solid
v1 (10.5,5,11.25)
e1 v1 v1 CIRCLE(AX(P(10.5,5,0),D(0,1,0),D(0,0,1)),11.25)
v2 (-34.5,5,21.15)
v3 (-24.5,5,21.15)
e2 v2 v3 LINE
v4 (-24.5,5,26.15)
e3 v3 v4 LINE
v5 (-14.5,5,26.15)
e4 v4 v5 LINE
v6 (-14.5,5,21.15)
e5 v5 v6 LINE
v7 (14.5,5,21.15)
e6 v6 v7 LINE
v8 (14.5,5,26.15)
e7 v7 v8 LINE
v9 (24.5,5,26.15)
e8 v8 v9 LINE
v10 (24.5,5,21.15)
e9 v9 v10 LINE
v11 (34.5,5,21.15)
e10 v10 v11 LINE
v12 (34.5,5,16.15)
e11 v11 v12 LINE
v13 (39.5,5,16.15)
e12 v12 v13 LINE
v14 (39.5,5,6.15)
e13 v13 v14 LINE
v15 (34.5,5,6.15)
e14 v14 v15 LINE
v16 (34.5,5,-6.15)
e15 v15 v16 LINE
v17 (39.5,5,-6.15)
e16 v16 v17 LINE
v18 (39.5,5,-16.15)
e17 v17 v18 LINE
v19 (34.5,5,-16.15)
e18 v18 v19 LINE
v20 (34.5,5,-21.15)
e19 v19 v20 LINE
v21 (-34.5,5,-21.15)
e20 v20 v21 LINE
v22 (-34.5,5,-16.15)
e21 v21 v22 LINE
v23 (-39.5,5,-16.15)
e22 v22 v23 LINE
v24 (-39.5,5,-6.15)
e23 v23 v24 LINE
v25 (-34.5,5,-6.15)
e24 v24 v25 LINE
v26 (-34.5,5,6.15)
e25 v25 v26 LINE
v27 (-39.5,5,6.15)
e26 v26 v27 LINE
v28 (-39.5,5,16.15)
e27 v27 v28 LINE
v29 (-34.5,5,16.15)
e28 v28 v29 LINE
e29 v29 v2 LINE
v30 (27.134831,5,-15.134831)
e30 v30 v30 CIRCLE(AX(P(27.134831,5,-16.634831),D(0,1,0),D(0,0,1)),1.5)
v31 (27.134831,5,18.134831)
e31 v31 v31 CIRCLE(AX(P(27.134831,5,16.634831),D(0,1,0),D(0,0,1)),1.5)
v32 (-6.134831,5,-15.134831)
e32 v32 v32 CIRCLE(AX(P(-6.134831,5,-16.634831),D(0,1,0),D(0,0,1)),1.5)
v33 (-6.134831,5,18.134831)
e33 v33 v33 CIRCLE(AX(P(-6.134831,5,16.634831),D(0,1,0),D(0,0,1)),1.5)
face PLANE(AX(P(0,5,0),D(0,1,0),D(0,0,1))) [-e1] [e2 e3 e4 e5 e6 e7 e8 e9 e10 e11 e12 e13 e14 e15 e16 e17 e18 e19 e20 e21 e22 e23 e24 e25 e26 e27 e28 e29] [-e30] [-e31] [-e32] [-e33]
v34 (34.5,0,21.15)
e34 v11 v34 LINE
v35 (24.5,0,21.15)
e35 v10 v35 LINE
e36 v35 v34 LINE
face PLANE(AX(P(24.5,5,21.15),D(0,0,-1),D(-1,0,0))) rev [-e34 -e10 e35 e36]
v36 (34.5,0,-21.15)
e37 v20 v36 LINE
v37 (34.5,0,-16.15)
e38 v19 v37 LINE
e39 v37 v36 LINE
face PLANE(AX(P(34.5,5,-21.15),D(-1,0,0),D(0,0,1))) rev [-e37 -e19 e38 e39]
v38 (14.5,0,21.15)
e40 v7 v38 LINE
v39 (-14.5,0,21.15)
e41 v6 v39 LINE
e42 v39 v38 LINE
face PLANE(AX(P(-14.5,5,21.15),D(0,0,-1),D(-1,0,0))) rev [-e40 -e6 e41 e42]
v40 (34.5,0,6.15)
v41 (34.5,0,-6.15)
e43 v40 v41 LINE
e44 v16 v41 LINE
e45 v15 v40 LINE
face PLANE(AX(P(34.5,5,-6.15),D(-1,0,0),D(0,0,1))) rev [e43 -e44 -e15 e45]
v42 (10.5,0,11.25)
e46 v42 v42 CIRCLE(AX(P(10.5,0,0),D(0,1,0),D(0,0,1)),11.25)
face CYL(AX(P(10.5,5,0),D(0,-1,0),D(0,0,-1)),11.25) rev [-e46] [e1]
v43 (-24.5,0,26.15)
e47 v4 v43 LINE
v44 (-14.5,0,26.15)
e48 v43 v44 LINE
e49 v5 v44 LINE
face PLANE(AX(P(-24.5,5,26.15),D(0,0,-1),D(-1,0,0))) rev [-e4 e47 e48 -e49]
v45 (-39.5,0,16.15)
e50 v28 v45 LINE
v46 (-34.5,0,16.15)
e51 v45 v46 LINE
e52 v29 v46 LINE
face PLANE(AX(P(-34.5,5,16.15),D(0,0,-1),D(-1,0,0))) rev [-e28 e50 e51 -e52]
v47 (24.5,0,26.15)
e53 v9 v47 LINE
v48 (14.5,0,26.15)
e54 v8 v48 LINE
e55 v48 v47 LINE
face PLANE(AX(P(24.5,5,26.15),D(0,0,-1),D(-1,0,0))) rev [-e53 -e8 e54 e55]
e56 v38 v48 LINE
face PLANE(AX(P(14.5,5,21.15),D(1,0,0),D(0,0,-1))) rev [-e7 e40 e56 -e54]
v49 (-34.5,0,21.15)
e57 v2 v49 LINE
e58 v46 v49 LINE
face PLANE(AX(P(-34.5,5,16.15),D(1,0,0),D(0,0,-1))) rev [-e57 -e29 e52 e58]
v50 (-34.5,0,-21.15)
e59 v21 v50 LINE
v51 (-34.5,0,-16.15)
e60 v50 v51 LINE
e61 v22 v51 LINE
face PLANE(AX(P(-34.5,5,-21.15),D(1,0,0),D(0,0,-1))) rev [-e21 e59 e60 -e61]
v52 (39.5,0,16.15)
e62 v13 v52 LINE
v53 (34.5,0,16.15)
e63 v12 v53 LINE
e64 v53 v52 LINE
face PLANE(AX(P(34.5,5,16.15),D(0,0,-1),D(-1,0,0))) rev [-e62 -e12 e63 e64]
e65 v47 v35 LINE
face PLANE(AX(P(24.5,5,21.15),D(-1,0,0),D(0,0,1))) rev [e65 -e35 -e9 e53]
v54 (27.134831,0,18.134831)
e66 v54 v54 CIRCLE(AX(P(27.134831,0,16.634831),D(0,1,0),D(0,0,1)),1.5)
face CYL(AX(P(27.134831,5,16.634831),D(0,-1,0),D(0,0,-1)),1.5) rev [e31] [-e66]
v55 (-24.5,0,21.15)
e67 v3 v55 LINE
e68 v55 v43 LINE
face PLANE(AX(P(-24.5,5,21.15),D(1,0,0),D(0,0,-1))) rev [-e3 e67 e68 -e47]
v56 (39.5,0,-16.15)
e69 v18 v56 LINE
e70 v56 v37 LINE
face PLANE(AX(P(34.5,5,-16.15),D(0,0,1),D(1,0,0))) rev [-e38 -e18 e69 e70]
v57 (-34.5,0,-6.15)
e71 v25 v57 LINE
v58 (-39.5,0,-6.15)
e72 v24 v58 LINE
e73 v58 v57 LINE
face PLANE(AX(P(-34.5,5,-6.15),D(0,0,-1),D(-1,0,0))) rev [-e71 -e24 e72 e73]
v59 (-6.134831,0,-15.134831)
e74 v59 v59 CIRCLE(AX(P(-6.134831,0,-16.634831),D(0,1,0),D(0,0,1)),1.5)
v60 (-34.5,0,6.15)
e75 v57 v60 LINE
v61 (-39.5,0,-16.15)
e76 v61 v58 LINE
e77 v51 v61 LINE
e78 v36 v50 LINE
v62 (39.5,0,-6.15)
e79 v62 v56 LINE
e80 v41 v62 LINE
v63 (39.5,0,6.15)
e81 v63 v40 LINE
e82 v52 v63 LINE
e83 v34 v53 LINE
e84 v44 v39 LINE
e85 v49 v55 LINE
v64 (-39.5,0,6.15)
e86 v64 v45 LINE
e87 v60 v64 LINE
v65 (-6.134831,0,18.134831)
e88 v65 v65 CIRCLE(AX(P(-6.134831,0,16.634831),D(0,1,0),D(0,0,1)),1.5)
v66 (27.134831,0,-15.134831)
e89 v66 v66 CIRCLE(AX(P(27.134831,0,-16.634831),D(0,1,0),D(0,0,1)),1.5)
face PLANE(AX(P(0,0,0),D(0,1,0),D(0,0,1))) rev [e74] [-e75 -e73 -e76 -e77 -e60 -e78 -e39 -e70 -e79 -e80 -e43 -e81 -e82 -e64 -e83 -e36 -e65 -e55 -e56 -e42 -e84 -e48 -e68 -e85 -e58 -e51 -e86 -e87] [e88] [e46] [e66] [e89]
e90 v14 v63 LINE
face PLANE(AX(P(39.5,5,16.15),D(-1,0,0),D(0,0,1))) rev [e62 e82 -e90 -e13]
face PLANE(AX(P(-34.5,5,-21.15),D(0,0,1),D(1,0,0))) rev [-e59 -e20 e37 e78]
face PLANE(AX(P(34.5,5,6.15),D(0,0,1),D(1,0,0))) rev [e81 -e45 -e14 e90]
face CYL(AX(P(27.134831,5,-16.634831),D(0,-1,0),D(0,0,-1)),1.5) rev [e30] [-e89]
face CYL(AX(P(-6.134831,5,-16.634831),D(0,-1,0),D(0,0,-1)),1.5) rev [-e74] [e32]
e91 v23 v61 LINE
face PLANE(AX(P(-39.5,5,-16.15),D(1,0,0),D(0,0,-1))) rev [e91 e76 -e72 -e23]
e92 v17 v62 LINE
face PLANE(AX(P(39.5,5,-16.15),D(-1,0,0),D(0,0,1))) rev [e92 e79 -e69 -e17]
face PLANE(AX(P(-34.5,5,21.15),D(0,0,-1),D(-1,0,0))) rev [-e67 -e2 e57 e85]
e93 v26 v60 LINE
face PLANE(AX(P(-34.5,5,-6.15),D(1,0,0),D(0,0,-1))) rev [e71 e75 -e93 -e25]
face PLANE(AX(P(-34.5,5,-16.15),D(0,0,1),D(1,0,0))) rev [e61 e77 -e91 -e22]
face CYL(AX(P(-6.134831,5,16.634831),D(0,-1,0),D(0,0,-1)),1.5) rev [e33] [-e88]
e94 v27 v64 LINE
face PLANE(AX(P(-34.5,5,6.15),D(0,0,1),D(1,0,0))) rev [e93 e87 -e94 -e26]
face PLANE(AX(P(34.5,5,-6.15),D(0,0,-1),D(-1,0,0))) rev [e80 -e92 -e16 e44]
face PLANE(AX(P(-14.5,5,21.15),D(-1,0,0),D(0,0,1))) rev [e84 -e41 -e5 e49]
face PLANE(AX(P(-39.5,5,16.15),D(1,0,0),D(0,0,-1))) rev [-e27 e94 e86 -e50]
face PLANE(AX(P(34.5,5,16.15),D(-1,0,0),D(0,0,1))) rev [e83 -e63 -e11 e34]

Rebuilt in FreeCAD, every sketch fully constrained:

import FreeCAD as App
import Part
import Sketcher
Q = App.Units.Quantity

doc = App.newDocument("Part")
body = doc.addObject("PartDesign::Body", "Body")

sketch1 = body.newObject("Sketcher::SketchObject", "Sketch")
sketch1.AttachmentSupport = (doc.getObject("XZ_Plane"), [""])
sketch1.MapMode = "FlatFace"
sketch1.addGeometry([
    Part.LineSegment(App.Vector(34.5, -21.1, 0), App.Vector(-34.5, -21.1, 0)),
    Part.LineSegment(App.Vector(-34.5, -21.1, 0), App.Vector(-34.5, -16.1, 0)),
    Part.LineSegment(App.Vector(-34.5, -16.1, 0), App.Vector(-39.5, -16.1, 0)),
    Part.LineSegment(App.Vector(-39.5, -16.1, 0), App.Vector(-39.5, -6.2, 0)),
    Part.LineSegment(App.Vector(-39.5, -6.2, 0), App.Vector(-34.5, -6.2, 0)),
    Part.LineSegment(App.Vector(-34.5, -6.2, 0), App.Vector(-34.5, 6.2, 0)),
    Part.LineSegment(App.Vector(-34.5, 6.2, 0), App.Vector(-39.5, 6.2, 0)),
    Part.LineSegment(App.Vector(-39.5, 6.2, 0), App.Vector(-39.5, 16.1, 0)),
    Part.LineSegment(App.Vector(-39.5, 16.1, 0), App.Vector(-34.5, 16.1, 0)),
    Part.LineSegment(App.Vector(-34.5, 16.1, 0), App.Vector(-34.5, 21.1, 0)),
    Part.LineSegment(App.Vector(-34.5, 21.1, 0), App.Vector(-24.5, 21.1, 0)),
    Part.LineSegment(App.Vector(-24.5, 21.1, 0), App.Vector(-24.5, 26.1, 0)),
    Part.LineSegment(App.Vector(-24.5, 26.1, 0), App.Vector(-14.5, 26.1, 0)),
    Part.LineSegment(App.Vector(-14.5, 26.1, 0), App.Vector(-14.5, 21.1, 0)),
    Part.LineSegment(App.Vector(-14.5, 21.1, 0), App.Vector(14.5, 21.1, 0)),
    Part.LineSegment(App.Vector(14.5, 21.1, 0), App.Vector(14.5, 26.1, 0)),
    Part.LineSegment(App.Vector(14.5, 26.1, 0), App.Vector(24.5, 26.1, 0)),
    Part.LineSegment(App.Vector(24.5, 26.1, 0), App.Vector(24.5, 21.1, 0)),
    Part.LineSegment(App.Vector(24.5, 21.1, 0), App.Vector(34.5, 21.1, 0)),
    Part.LineSegment(App.Vector(34.5, 21.1, 0), App.Vector(34.5, 16.1, 0)),
    Part.LineSegment(App.Vector(34.5, 16.1, 0), App.Vector(39.5, 16.1, 0)),
    Part.LineSegment(App.Vector(39.5, 16.1, 0), App.Vector(39.5, 6.2, 0)),
    Part.LineSegment(App.Vector(39.5, 6.2, 0), App.Vector(34.5, 6.2, 0)),
    Part.LineSegment(App.Vector(34.5, 6.2, 0), App.Vector(34.5, -6.2, 0)),
    Part.LineSegment(App.Vector(34.5, -6.2, 0), App.Vector(39.5, -6.2, 0)),
    Part.LineSegment(App.Vector(39.5, -6.2, 0), App.Vector(39.5, -16.1, 0)),
    Part.LineSegment(App.Vector(39.5, -16.1, 0), App.Vector(34.5, -16.1, 0)),
    Part.LineSegment(App.Vector(34.5, -16.1, 0), App.Vector(34.5, -21.1, 0)),
    Part.Circle(App.Vector(27.1, 16.6, 0), App.Vector(0, 0, 1), 1.5),
    Part.Circle(App.Vector(-6.1, 16.6, 0), App.Vector(0, 0, 1), 1.5),
    Part.Circle(App.Vector(27.1, -16.6, 0), App.Vector(0, 0, 1), 1.5),
    Part.Circle(App.Vector(10.5, 0, 0), App.Vector(0, 0, 1), 11.2),
    Part.Circle(App.Vector(-6.1, -16.6, 0), App.Vector(0, 0, 1), 1.5),
], False)
sketch1.addConstraint([
    Sketcher.Constraint("Coincident", 0, 2, 1, 1),
    Sketcher.Constraint("Coincident", 1, 2, 2, 1),
    Sketcher.Constraint("Coincident", 2, 2, 3, 1),
    Sketcher.Constraint("Coincident", 3, 2, 4, 1),
    Sketcher.Constraint("Coincident", 4, 2, 5, 1),
    Sketcher.Constraint("Coincident", 5, 2, 6, 1),
    Sketcher.Constraint("Coincident", 6, 2, 7, 1),
    Sketcher.Constraint("Coincident", 7, 2, 8, 1),
    Sketcher.Constraint("Coincident", 8, 2, 9, 1),
    Sketcher.Constraint("Coincident", 9, 2, 10, 1),
    Sketcher.Constraint("Coincident", 10, 2, 11, 1),
    Sketcher.Constraint("Coincident", 11, 2, 12, 1),
    Sketcher.Constraint("Coincident", 12, 2, 13, 1),
    Sketcher.Constraint("Coincident", 13, 2, 14, 1),
    Sketcher.Constraint("Coincident", 14, 2, 15, 1),
    Sketcher.Constraint("Coincident", 15, 2, 16, 1),
    Sketcher.Constraint("Coincident", 16, 2, 17, 1),
    Sketcher.Constraint("Coincident", 17, 2, 18, 1),
    Sketcher.Constraint("Coincident", 18, 2, 19, 1),
    Sketcher.Constraint("Coincident", 19, 2, 20, 1),
    Sketcher.Constraint("Coincident", 20, 2, 21, 1),
    Sketcher.Constraint("Coincident", 21, 2, 22, 1),
    Sketcher.Constraint("Coincident", 22, 2, 23, 1),
    Sketcher.Constraint("Coincident", 23, 2, 24, 1),
    Sketcher.Constraint("Coincident", 24, 2, 25, 1),
    Sketcher.Constraint("Coincident", 25, 2, 26, 1),
    Sketcher.Constraint("Coincident", 26, 2, 27, 1),
    Sketcher.Constraint("Coincident", 27, 2, 0, 1),
    Sketcher.Constraint("Horizontal", 0),
    Sketcher.Constraint("Vertical", 1),
    Sketcher.Constraint("Horizontal", 2),
    Sketcher.Constraint("Vertical", 3),
    Sketcher.Constraint("Horizontal", 4),
    Sketcher.Constraint("Vertical", 5),
    Sketcher.Constraint("Horizontal", 6),
    Sketcher.Constraint("Vertical", 7),
    Sketcher.Constraint("Horizontal", 8),
    Sketcher.Constraint("Vertical", 9),
    Sketcher.Constraint("Horizontal", 10),
    Sketcher.Constraint("Vertical", 11),
    Sketcher.Constraint("Horizontal", 12),
    Sketcher.Constraint("Vertical", 13),
    Sketcher.Constraint("Horizontal", 14),
    Sketcher.Constraint("Vertical", 15),
    Sketcher.Constraint("Horizontal", 16),
    Sketcher.Constraint("Vertical", 17),
    Sketcher.Constraint("Horizontal", 18),
    Sketcher.Constraint("Vertical", 19),
    Sketcher.Constraint("Horizontal", 20),
    Sketcher.Constraint("Vertical", 21),
    Sketcher.Constraint("Horizontal", 22),
    Sketcher.Constraint("Vertical", 23),
    Sketcher.Constraint("Horizontal", 24),
    Sketcher.Constraint("Vertical", 25),
    Sketcher.Constraint("Horizontal", 26),
    Sketcher.Constraint("Vertical", 27),
    Sketcher.Constraint("Equal", 28, 29),
    Sketcher.Constraint("Equal", 29, 30),
    Sketcher.Constraint("Equal", 30, 32),
    Sketcher.Constraint("Symmetric", 0, 2, 18, 2, -1, 1),
    Sketcher.Constraint("Symmetric", 2, 2, 20, 2, -1, 1),
    Sketcher.Constraint("Symmetric", 4, 2, 22, 2, -1, 1),
    Sketcher.Constraint("Symmetric", 6, 2, 24, 2, -1, 1),
    Sketcher.Constraint("Symmetric", 8, 2, 26, 2, -1, 1),
    Sketcher.Constraint("Symmetric", 12, 2, 15, 2, -2),
    Sketcher.Constraint("Symmetric", 10, 2, 17, 2, -2),
    Sketcher.Constraint("Symmetric", 8, 2, 19, 2, -2),
    Sketcher.Constraint("Symmetric", 6, 2, 21, 2, -2),
    Sketcher.Constraint("Symmetric", 28, 3, 30, 3, -1),
    Sketcher.Constraint("Symmetric", 29, 3, 32, 3, -1),
    Sketcher.Constraint("PointOnObject", 31, 3, -1),
    Sketcher.Constraint("Horizontal", 28, 3, 29, 3),
    Sketcher.Constraint("Horizontal", 10, 2, 13, 2),
    Sketcher.Constraint("Vertical", 1, 2, 4, 2),
    Sketcher.Constraint("Equal", 10, 12),
    Sketcher.Constraint("Equal", 26, 1),
    Sketcher.Constraint("Equal", 18, 3),
    Sketcher.Constraint("Equal", 9, 11),
    Sketcher.Constraint("Diameter", 28, Q("3 mm")),
    Sketcher.Constraint("Diameter", 31, Q("22.5 mm")),
    Sketcher.Constraint("DistanceX", 0, 2, 0, 1, Q("69 mm")),
    Sketcher.Constraint("DistanceX", 2, 2, 2, 1, Q("5 mm")),
    Sketcher.Constraint("DistanceX", 10, 1, 10, 2, Q("10 mm")),
    Sketcher.Constraint("DistanceY", 5, 1, 5, 2, Q("12.3 mm")),
    Sketcher.Constraint("DistanceX", 0, 2, 31, 3, Q("45 mm")),
    Sketcher.Constraint("DistanceX", -1, 1, 28, 3, Q("27.134831 mm")),
    Sketcher.Constraint("DistanceY", -1, 1, 28, 3, Q("16.634831 mm")),
    Sketcher.Constraint("DistanceX", 29, 3, -1, 1, Q("6.134831 mm")),
])
pad1 = body.newObject("PartDesign::Pad", "Pad")
pad1.Profile = sketch1
pad1.Length = 5
pad1.Reversed = True

doc.recompute()
